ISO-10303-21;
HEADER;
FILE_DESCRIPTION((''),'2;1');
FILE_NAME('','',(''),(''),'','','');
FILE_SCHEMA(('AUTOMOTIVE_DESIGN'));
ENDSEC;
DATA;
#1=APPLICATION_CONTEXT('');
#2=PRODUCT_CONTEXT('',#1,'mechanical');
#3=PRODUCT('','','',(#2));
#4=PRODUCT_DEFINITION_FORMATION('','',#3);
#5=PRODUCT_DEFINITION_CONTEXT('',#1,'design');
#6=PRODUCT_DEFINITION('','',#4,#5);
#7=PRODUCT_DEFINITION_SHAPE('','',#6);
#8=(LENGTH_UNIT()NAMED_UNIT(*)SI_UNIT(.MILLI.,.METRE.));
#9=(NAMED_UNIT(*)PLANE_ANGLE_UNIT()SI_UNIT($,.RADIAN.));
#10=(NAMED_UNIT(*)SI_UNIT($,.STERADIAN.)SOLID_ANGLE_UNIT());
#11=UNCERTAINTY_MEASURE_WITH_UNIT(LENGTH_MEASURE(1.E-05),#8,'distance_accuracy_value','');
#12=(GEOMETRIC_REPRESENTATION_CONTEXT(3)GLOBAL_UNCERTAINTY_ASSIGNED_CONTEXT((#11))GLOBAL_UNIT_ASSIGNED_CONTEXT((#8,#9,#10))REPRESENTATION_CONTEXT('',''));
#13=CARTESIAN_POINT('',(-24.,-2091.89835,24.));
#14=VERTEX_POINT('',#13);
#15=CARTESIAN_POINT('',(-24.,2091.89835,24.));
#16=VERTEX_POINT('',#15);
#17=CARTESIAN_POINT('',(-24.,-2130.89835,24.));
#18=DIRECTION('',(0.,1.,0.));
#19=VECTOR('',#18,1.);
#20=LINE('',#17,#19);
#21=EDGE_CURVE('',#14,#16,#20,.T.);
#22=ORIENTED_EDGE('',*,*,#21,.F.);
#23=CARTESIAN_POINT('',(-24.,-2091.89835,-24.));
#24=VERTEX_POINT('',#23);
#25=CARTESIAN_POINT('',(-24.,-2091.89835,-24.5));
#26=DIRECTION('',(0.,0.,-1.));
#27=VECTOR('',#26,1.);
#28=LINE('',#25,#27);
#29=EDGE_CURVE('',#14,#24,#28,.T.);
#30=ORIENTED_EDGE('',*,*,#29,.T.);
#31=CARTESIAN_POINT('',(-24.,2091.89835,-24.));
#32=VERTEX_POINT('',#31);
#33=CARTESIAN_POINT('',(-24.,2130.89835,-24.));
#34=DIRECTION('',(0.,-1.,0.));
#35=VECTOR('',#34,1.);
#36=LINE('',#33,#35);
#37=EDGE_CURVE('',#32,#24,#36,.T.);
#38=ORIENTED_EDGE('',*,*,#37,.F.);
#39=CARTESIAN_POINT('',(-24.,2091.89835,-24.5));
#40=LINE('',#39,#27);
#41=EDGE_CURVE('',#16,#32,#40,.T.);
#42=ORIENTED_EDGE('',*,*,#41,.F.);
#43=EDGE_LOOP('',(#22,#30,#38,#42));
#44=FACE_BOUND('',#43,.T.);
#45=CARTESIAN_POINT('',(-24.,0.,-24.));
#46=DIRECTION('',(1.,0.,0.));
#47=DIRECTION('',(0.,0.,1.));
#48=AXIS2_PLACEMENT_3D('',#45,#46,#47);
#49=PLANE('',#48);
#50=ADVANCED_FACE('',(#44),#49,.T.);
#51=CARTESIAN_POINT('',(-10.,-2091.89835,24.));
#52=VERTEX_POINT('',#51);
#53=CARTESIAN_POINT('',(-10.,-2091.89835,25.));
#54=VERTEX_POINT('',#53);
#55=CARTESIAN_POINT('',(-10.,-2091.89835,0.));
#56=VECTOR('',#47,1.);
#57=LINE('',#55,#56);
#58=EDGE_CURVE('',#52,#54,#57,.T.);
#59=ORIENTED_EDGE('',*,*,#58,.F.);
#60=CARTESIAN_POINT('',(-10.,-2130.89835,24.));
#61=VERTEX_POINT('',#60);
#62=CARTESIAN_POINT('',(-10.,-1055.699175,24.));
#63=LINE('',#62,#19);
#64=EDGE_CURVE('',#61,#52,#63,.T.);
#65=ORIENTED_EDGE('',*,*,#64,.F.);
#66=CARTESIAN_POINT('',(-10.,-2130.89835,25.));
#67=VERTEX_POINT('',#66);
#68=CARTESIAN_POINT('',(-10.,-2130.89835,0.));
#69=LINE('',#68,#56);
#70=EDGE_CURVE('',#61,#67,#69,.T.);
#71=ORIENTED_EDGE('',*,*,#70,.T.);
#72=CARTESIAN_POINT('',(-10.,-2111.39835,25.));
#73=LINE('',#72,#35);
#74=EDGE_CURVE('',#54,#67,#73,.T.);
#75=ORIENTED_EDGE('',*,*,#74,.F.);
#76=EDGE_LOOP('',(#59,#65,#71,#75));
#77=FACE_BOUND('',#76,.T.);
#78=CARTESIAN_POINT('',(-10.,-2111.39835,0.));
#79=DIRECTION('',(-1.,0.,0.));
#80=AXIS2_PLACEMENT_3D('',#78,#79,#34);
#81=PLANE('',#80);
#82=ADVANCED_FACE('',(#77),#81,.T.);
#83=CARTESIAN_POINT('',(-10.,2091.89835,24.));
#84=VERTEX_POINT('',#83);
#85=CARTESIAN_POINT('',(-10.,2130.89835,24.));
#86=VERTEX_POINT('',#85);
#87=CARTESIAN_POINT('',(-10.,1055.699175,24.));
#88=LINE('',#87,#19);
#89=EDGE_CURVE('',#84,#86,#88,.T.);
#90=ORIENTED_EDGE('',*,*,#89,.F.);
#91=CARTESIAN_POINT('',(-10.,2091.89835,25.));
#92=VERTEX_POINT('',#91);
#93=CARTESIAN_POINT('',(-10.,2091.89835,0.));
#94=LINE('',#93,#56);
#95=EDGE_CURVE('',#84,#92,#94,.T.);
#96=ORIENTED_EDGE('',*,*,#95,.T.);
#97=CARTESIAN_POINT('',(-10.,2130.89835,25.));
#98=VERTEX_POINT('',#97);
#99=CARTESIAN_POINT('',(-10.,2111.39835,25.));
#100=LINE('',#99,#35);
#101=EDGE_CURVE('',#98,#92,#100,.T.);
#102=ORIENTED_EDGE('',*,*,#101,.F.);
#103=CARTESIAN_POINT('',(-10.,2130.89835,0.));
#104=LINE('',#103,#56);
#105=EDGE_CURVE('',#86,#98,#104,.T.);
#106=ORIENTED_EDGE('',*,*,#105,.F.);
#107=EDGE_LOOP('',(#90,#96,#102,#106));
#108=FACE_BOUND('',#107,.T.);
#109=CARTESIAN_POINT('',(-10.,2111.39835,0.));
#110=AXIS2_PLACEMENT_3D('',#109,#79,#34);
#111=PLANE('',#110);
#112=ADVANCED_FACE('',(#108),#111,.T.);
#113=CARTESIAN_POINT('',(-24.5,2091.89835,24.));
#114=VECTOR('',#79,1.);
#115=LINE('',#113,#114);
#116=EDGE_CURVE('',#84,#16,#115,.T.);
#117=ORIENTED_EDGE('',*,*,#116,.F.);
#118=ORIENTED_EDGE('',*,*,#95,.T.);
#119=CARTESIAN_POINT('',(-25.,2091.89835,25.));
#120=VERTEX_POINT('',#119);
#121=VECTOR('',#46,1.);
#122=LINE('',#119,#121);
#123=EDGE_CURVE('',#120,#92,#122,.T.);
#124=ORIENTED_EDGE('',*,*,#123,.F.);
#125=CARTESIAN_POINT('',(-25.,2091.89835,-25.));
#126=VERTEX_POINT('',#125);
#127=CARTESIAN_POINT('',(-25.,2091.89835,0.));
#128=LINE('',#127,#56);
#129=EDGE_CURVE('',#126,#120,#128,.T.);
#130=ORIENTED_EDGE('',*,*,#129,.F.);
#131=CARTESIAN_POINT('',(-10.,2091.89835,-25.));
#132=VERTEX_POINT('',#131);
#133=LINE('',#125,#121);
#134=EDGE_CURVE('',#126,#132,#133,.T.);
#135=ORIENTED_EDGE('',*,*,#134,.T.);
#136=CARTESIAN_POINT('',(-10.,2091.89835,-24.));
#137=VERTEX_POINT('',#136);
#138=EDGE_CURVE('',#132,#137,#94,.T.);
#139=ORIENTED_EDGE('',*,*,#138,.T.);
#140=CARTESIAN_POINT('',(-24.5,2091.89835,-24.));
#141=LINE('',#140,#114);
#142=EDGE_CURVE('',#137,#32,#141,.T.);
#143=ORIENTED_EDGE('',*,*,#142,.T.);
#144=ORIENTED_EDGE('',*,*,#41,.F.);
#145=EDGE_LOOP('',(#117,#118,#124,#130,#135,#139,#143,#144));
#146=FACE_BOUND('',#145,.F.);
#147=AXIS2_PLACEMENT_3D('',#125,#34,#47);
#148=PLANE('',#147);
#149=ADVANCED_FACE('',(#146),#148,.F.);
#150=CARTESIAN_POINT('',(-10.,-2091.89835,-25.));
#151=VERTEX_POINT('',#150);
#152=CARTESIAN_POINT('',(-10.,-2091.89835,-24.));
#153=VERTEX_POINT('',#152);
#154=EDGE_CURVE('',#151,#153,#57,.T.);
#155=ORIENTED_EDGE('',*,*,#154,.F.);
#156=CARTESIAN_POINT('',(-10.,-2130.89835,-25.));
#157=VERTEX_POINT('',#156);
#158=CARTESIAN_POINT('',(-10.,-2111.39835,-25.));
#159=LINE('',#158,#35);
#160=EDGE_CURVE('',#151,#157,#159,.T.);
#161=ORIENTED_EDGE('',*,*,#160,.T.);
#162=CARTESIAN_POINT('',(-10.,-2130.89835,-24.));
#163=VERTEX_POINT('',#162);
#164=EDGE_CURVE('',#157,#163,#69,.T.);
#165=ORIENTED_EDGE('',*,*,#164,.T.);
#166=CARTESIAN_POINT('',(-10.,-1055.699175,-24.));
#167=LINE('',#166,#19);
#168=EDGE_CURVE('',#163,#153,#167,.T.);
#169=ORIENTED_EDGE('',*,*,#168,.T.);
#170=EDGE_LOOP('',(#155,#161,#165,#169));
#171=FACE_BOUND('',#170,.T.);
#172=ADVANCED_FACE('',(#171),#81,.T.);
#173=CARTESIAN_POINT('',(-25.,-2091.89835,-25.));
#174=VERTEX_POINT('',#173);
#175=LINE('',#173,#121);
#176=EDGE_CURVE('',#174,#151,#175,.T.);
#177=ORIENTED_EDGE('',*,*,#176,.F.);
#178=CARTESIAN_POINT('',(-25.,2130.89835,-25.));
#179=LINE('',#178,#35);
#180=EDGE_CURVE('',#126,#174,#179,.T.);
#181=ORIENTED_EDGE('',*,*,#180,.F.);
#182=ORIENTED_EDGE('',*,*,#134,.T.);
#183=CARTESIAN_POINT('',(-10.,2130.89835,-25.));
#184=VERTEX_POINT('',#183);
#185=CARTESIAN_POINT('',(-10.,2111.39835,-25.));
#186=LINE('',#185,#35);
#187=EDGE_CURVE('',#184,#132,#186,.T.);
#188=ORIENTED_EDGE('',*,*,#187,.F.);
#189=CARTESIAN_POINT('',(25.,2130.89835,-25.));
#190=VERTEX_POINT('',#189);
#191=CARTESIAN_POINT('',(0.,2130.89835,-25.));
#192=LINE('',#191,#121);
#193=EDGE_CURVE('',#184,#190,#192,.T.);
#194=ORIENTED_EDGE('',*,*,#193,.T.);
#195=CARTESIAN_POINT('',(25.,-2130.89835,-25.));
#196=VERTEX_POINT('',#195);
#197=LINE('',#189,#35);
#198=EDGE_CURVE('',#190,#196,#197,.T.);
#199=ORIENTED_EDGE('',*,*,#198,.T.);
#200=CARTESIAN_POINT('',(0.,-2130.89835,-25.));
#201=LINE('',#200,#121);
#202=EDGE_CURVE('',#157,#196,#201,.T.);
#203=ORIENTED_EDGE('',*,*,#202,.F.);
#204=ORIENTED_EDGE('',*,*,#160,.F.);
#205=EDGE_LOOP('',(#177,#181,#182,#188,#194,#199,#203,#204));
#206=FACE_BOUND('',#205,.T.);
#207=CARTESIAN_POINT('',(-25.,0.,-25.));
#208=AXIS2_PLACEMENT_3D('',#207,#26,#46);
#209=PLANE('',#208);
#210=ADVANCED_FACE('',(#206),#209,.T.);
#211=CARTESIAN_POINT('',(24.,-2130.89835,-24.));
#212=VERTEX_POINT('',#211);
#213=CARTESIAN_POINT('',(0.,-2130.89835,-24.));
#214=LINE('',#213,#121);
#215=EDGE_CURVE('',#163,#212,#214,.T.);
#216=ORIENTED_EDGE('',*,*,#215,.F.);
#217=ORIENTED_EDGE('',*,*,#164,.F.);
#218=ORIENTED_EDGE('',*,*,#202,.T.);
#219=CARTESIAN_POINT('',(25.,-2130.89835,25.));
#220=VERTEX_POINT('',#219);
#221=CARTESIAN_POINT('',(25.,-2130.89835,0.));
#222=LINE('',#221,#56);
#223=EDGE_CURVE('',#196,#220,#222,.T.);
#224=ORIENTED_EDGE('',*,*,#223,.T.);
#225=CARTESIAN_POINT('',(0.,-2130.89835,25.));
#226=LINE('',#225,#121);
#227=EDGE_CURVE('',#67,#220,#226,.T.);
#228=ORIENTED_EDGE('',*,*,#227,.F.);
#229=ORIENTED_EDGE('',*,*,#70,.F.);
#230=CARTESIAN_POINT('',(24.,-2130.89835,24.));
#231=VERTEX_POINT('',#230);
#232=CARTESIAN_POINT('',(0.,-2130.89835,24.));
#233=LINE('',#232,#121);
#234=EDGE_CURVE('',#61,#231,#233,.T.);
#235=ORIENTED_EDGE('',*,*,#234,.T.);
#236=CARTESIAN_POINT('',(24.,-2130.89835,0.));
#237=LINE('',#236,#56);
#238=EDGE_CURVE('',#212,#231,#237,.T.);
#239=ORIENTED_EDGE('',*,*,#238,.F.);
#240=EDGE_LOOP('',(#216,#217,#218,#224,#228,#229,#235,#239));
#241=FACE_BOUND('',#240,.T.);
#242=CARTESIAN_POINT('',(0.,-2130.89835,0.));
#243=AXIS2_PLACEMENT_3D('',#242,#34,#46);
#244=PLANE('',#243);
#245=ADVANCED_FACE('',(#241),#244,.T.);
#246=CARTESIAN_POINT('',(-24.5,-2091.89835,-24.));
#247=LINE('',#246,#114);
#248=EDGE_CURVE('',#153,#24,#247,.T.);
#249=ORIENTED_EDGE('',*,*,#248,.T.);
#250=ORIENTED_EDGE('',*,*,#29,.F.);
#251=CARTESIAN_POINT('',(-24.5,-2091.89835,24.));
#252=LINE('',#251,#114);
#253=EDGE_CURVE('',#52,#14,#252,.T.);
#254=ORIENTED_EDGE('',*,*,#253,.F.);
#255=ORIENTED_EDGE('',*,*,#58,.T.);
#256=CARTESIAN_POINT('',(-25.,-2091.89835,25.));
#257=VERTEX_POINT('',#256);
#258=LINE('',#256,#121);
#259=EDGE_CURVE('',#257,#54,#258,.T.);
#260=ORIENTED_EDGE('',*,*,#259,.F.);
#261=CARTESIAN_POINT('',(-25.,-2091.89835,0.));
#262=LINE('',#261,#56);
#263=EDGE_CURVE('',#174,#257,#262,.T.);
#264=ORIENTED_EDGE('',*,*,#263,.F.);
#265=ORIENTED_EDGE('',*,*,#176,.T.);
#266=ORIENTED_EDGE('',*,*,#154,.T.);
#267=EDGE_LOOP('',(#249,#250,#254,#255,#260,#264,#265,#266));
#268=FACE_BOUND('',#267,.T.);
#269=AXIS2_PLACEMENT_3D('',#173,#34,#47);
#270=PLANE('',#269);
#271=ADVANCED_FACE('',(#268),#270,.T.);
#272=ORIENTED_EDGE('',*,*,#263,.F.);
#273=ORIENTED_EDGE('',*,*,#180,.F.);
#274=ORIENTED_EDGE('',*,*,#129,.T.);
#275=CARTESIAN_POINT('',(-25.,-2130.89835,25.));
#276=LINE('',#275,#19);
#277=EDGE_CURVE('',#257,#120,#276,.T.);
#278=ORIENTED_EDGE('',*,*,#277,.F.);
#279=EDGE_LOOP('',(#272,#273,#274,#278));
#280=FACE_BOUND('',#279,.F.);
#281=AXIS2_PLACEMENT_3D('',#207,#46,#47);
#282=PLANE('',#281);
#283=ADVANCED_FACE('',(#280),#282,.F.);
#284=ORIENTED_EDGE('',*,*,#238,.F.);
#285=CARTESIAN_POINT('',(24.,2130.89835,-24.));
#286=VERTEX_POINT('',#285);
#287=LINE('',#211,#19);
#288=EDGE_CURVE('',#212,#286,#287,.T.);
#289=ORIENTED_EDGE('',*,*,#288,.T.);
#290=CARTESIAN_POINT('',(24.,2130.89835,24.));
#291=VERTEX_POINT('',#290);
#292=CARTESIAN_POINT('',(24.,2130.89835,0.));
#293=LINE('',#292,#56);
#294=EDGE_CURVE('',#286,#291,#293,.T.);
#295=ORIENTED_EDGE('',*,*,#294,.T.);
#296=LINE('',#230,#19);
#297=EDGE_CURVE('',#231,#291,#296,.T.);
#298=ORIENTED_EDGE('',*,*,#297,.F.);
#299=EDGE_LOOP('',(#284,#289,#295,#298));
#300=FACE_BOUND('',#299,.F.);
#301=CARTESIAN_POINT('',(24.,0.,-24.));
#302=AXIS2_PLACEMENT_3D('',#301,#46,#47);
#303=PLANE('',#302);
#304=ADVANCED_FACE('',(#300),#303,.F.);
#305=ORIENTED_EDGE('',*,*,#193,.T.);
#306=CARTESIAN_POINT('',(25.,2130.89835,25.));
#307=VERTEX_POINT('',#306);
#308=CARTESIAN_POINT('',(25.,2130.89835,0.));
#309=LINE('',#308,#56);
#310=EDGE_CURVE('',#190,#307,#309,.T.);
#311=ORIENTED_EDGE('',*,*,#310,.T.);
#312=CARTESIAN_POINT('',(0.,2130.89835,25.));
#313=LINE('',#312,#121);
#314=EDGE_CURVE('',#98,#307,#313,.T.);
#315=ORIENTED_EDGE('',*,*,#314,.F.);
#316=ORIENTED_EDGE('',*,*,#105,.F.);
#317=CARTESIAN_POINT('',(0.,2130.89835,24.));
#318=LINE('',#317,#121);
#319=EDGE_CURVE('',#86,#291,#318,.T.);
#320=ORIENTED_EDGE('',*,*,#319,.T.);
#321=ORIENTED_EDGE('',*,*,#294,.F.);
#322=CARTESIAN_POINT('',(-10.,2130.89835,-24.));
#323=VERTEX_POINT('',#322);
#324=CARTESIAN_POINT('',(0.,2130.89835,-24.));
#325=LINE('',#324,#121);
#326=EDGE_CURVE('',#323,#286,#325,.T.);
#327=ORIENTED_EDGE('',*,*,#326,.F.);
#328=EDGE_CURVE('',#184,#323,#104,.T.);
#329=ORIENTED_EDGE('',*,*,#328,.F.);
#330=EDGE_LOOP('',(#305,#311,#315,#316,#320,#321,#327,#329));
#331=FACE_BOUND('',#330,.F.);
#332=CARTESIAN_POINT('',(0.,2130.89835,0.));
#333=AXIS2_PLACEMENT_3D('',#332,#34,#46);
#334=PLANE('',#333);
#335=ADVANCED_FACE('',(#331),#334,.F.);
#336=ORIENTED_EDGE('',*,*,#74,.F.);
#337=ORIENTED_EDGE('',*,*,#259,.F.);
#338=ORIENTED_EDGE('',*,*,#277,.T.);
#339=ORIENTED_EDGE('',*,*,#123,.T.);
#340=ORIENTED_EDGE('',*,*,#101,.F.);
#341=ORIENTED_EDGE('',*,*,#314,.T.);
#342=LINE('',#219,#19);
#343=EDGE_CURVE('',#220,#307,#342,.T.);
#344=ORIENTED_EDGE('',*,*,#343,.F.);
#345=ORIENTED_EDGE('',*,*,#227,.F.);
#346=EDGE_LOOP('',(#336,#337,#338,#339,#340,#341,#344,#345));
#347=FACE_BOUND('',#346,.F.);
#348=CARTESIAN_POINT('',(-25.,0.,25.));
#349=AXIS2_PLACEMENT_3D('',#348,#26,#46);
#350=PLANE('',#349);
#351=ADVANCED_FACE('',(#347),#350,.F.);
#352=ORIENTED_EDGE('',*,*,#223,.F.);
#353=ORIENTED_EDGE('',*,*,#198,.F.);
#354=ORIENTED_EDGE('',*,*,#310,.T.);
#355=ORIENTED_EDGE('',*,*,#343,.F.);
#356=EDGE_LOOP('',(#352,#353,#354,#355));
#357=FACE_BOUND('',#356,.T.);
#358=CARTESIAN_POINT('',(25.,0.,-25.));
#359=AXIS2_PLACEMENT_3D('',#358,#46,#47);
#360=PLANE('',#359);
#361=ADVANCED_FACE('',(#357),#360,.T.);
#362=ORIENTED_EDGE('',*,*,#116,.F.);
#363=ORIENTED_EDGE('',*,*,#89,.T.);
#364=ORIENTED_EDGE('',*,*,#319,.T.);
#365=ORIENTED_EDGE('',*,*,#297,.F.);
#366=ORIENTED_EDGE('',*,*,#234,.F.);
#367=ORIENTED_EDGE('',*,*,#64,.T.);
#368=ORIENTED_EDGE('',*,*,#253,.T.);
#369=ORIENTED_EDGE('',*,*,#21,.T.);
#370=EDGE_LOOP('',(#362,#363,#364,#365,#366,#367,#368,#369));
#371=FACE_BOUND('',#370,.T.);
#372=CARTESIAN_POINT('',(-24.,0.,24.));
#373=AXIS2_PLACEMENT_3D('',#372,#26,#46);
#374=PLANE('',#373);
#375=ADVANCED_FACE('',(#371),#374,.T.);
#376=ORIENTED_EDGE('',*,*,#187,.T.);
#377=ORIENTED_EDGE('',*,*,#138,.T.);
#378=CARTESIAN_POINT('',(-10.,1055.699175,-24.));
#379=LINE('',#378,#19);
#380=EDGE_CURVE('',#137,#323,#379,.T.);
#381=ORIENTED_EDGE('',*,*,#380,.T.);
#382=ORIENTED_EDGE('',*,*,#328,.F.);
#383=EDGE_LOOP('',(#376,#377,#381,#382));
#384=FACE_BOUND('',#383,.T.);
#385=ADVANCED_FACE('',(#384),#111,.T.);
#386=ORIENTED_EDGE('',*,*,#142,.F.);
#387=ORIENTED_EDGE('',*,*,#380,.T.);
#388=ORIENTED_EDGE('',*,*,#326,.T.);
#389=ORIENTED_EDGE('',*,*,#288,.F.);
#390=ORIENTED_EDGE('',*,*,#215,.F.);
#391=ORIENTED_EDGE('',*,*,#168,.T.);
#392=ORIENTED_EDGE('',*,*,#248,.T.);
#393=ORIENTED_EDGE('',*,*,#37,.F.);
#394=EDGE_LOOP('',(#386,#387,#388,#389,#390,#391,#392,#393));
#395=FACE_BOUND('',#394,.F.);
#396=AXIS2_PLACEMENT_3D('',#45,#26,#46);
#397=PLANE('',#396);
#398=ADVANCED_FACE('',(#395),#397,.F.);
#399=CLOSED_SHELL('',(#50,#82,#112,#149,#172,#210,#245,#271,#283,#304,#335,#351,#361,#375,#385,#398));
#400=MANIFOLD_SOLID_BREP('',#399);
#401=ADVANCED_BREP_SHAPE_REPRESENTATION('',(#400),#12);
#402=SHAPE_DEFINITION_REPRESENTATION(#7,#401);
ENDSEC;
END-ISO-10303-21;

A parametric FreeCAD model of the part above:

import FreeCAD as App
import Part
import Sketcher
Q = App.Units.Quantity

doc = App.newDocument("Part")
body = doc.addObject("PartDesign::Body", "Body")

# Sketch on XZ plane
sketch1 = body.newObject("Sketcher::SketchObject", "Sketch")
sketch1.AttachmentSupport = (doc.getObject("XZ_Plane"), [""])
sketch1.MapMode = "FlatFace"
sketch1.addGeometry(Part.LineSegment(App.Vector(-25, 25, 0), App.Vector(-25, -25, 0)), False)
sketch1.addGeometry(Part.LineSegment(App.Vector(-25, -25, 0), App.Vector(25, -25, 0)), False)
sketch1.addGeometry(Part.LineSegment(App.Vector(25, -25, 0), App.Vector(25, 25, 0)), False)
sketch1.addGeometry(Part.LineSegment(App.Vector(25, 25, 0), App.Vector(-25, 25, 0)), False)
sketch1.addGeometry(Part.LineSegment(App.Vector(24, -24, 0), App.Vector(-24, -24, 0)), False)
sketch1.addGeometry(Part.LineSegment(App.Vector(-24, -24, 0), App.Vector(-24, 24, 0)), False)
sketch1.addGeometry(Part.LineSegment(App.Vector(-24, 24, 0), App.Vector(24, 24, 0)), False)
sketch1.addGeometry(Part.LineSegment(App.Vector(24, 24, 0), App.Vector(24, -24, 0)), False)
sketch1.addConstraint(Sketcher.Constraint("Coincident", 0, 2, 1, 1))
sketch1.addConstraint(Sketcher.Constraint("Coincident", 1, 2, 2, 1))
sketch1.addConstraint(Sketcher.Constraint("Coincident", 2, 2, 3, 1))
sketch1.addConstraint(Sketcher.Constraint("Coincident", 3, 2, 0, 1))
sketch1.addConstraint(Sketcher.Constraint("Coincident", 4, 2, 5, 1))
sketch1.addConstraint(Sketcher.Constraint("Coincident", 5, 2, 6, 1))
sketch1.addConstraint(Sketcher.Constraint("Coincident", 6, 2, 7, 1))
sketch1.addConstraint(Sketcher.Constraint("Coincident", 7, 2, 4, 1))
sketch1.addConstraint(Sketcher.Constraint("Vertical", 0))
sketch1.addConstraint(Sketcher.Constraint("Horizontal", 1))
sketch1.addConstraint(Sketcher.Constraint("Vertical", 2))
sketch1.addConstraint(Sketcher.Constraint("Horizontal", 3))
sketch1.addConstraint(Sketcher.Constraint("Horizontal", 4))
sketch1.addConstraint(Sketcher.Constraint("Vertical", 5))
sketch1.addConstraint(Sketcher.Constraint("Horizontal", 6))
sketch1.addConstraint(Sketcher.Constraint("Vertical", 7))
sketch1.addConstraint(Sketcher.Constraint("Symmetric", 0, 2, 2, 2, -1, 1))
sketch1.addConstraint(Sketcher.Constraint("Symmetric", 4, 2, 6, 2, -1, 1))
sketch1.addConstraint(Sketcher.Constraint("Equal", 3, 0))
sketch1.addConstraint(Sketcher.Constraint("Equal", 6, 5))
sketch1.addConstraint(Sketcher.Constraint("DistanceX", 1, 1, 1, 2, Q("50 mm")))
sketch1.addConstraint(Sketcher.Constraint("DistanceX", 4, 2, 4, 1, Q("48 mm")))
pad1 = body.newObject("PartDesign::Pad", "Pad")
pad1.Profile = sketch1
pad1.Length = 4261.7967
pad1.Midplane = True

# Sketch on YZ plane
sketch2 = body.newObject("Sketcher::SketchObject", "Sketch001")
sketch2.AttachmentSupport = (doc.getObject("YZ_Plane"), [""])
sketch2.MapMode = "FlatFace"
sketch2.AttachmentOffset = App.Placement(App.Vector(0, 0, -25), App.Rotation())
sketch2.addGeometry(Part.LineSegment(App.Vector(2131, 25, 0), App.Vector(2131, -25, 0)), False)
sketch2.addGeometry(Part.LineSegment(App.Vector(2131, -25, 0), App.Vector(2092, -25, 0)), False)
sketch2.addGeometry(Part.LineSegment(App.Vector(2092, -25, 0), App.Vector(2092, 25, 0)), False)
sketch2.addGeometry(Part.LineSegment(App.Vector(2092, 25, 0), App.Vector(2131, 25, 0)), False)
sketch2.addGeometry(Part.LineSegment(App.Vector(-2092, 25, 0), App.Vector(-2092, -25, 0)), False)
sketch2.addGeometry(Part.LineSegment(App.Vector(-2092, -25, 0), App.Vector(-2131, -25, 0)), False)
sketch2.addGeometry(Part.LineSegment(App.Vector(-2131, -25, 0), App.Vector(-2131, 25, 0)), False)
sketch2.addGeometry(Part.LineSegment(App.Vector(-2131, 25, 0), App.Vector(-2092, 25, 0)), False)
sketch2.addConstraint(Sketcher.Constraint("Coincident", 0, 2, 1, 1))
sketch2.addConstraint(Sketcher.Constraint("Coincident", 1, 2, 2, 1))
sketch2.addConstraint(Sketcher.Constraint("Coincident", 2, 2, 3, 1))
sketch2.addConstraint(Sketcher.Constraint("Coincident", 3, 2, 0, 1))
sketch2.addConstraint(Sketcher.Constraint("Coincident", 4, 2, 5, 1))
sketch2.addConstraint(Sketcher.Constraint("Coincident", 5, 2, 6, 1))
sketch2.addConstraint(Sketcher.Constraint("Coincident", 6, 2, 7, 1))
sketch2.addConstraint(Sketcher.Constraint("Coincident", 7, 2, 4, 1))
sketch2.addConstraint(Sketcher.Constraint("Vertical", 0))
sketch2.addConstraint(Sketcher.Constraint("Horizontal", 1))
sketch2.addConstraint(Sketcher.Constraint("Vertical", 2))
sketch2.addConstraint(Sketcher.Constraint("Horizontal", 3))
sketch2.addConstraint(Sketcher.Constraint("Vertical", 4))
sketch2.addConstraint(Sketcher.Constraint("Horizontal", 5))
sketch2.addConstraint(Sketcher.Constraint("Vertical", 6))
sketch2.addConstraint(Sketcher.Constraint("Horizontal", 7))
sketch2.addConstraint(Sketcher.Constraint("Symmetric", 2, 2, 4, 2, -1, 1))
sketch2.addConstraint(Sketcher.Constraint("Symmetric", 0, 2, 6, 2, -1, 1))
sketch2.addConstraint(Sketcher.Constraint("Horizontal", 1, 2, 4, 2))
sketch2.addConstraint(Sketcher.Constraint("DistanceX", 1, 2, 1, 1, Q("39 mm")))
sketch2.addConstraint(Sketcher.Constraint("DistanceY", 0, 2, 0, 1, Q("50 mm")))
sketch2.addConstraint(Sketcher.Constraint("DistanceX", 4, 2, 1, 2, Q("4183.7967 mm")))
pocket1 = body.newObject("PartDesign::Pocket", "Pocket")
pocket1.Profile = sketch2
pocket1.Length = 15
pocket1.Reversed = True

doc.recompute()
